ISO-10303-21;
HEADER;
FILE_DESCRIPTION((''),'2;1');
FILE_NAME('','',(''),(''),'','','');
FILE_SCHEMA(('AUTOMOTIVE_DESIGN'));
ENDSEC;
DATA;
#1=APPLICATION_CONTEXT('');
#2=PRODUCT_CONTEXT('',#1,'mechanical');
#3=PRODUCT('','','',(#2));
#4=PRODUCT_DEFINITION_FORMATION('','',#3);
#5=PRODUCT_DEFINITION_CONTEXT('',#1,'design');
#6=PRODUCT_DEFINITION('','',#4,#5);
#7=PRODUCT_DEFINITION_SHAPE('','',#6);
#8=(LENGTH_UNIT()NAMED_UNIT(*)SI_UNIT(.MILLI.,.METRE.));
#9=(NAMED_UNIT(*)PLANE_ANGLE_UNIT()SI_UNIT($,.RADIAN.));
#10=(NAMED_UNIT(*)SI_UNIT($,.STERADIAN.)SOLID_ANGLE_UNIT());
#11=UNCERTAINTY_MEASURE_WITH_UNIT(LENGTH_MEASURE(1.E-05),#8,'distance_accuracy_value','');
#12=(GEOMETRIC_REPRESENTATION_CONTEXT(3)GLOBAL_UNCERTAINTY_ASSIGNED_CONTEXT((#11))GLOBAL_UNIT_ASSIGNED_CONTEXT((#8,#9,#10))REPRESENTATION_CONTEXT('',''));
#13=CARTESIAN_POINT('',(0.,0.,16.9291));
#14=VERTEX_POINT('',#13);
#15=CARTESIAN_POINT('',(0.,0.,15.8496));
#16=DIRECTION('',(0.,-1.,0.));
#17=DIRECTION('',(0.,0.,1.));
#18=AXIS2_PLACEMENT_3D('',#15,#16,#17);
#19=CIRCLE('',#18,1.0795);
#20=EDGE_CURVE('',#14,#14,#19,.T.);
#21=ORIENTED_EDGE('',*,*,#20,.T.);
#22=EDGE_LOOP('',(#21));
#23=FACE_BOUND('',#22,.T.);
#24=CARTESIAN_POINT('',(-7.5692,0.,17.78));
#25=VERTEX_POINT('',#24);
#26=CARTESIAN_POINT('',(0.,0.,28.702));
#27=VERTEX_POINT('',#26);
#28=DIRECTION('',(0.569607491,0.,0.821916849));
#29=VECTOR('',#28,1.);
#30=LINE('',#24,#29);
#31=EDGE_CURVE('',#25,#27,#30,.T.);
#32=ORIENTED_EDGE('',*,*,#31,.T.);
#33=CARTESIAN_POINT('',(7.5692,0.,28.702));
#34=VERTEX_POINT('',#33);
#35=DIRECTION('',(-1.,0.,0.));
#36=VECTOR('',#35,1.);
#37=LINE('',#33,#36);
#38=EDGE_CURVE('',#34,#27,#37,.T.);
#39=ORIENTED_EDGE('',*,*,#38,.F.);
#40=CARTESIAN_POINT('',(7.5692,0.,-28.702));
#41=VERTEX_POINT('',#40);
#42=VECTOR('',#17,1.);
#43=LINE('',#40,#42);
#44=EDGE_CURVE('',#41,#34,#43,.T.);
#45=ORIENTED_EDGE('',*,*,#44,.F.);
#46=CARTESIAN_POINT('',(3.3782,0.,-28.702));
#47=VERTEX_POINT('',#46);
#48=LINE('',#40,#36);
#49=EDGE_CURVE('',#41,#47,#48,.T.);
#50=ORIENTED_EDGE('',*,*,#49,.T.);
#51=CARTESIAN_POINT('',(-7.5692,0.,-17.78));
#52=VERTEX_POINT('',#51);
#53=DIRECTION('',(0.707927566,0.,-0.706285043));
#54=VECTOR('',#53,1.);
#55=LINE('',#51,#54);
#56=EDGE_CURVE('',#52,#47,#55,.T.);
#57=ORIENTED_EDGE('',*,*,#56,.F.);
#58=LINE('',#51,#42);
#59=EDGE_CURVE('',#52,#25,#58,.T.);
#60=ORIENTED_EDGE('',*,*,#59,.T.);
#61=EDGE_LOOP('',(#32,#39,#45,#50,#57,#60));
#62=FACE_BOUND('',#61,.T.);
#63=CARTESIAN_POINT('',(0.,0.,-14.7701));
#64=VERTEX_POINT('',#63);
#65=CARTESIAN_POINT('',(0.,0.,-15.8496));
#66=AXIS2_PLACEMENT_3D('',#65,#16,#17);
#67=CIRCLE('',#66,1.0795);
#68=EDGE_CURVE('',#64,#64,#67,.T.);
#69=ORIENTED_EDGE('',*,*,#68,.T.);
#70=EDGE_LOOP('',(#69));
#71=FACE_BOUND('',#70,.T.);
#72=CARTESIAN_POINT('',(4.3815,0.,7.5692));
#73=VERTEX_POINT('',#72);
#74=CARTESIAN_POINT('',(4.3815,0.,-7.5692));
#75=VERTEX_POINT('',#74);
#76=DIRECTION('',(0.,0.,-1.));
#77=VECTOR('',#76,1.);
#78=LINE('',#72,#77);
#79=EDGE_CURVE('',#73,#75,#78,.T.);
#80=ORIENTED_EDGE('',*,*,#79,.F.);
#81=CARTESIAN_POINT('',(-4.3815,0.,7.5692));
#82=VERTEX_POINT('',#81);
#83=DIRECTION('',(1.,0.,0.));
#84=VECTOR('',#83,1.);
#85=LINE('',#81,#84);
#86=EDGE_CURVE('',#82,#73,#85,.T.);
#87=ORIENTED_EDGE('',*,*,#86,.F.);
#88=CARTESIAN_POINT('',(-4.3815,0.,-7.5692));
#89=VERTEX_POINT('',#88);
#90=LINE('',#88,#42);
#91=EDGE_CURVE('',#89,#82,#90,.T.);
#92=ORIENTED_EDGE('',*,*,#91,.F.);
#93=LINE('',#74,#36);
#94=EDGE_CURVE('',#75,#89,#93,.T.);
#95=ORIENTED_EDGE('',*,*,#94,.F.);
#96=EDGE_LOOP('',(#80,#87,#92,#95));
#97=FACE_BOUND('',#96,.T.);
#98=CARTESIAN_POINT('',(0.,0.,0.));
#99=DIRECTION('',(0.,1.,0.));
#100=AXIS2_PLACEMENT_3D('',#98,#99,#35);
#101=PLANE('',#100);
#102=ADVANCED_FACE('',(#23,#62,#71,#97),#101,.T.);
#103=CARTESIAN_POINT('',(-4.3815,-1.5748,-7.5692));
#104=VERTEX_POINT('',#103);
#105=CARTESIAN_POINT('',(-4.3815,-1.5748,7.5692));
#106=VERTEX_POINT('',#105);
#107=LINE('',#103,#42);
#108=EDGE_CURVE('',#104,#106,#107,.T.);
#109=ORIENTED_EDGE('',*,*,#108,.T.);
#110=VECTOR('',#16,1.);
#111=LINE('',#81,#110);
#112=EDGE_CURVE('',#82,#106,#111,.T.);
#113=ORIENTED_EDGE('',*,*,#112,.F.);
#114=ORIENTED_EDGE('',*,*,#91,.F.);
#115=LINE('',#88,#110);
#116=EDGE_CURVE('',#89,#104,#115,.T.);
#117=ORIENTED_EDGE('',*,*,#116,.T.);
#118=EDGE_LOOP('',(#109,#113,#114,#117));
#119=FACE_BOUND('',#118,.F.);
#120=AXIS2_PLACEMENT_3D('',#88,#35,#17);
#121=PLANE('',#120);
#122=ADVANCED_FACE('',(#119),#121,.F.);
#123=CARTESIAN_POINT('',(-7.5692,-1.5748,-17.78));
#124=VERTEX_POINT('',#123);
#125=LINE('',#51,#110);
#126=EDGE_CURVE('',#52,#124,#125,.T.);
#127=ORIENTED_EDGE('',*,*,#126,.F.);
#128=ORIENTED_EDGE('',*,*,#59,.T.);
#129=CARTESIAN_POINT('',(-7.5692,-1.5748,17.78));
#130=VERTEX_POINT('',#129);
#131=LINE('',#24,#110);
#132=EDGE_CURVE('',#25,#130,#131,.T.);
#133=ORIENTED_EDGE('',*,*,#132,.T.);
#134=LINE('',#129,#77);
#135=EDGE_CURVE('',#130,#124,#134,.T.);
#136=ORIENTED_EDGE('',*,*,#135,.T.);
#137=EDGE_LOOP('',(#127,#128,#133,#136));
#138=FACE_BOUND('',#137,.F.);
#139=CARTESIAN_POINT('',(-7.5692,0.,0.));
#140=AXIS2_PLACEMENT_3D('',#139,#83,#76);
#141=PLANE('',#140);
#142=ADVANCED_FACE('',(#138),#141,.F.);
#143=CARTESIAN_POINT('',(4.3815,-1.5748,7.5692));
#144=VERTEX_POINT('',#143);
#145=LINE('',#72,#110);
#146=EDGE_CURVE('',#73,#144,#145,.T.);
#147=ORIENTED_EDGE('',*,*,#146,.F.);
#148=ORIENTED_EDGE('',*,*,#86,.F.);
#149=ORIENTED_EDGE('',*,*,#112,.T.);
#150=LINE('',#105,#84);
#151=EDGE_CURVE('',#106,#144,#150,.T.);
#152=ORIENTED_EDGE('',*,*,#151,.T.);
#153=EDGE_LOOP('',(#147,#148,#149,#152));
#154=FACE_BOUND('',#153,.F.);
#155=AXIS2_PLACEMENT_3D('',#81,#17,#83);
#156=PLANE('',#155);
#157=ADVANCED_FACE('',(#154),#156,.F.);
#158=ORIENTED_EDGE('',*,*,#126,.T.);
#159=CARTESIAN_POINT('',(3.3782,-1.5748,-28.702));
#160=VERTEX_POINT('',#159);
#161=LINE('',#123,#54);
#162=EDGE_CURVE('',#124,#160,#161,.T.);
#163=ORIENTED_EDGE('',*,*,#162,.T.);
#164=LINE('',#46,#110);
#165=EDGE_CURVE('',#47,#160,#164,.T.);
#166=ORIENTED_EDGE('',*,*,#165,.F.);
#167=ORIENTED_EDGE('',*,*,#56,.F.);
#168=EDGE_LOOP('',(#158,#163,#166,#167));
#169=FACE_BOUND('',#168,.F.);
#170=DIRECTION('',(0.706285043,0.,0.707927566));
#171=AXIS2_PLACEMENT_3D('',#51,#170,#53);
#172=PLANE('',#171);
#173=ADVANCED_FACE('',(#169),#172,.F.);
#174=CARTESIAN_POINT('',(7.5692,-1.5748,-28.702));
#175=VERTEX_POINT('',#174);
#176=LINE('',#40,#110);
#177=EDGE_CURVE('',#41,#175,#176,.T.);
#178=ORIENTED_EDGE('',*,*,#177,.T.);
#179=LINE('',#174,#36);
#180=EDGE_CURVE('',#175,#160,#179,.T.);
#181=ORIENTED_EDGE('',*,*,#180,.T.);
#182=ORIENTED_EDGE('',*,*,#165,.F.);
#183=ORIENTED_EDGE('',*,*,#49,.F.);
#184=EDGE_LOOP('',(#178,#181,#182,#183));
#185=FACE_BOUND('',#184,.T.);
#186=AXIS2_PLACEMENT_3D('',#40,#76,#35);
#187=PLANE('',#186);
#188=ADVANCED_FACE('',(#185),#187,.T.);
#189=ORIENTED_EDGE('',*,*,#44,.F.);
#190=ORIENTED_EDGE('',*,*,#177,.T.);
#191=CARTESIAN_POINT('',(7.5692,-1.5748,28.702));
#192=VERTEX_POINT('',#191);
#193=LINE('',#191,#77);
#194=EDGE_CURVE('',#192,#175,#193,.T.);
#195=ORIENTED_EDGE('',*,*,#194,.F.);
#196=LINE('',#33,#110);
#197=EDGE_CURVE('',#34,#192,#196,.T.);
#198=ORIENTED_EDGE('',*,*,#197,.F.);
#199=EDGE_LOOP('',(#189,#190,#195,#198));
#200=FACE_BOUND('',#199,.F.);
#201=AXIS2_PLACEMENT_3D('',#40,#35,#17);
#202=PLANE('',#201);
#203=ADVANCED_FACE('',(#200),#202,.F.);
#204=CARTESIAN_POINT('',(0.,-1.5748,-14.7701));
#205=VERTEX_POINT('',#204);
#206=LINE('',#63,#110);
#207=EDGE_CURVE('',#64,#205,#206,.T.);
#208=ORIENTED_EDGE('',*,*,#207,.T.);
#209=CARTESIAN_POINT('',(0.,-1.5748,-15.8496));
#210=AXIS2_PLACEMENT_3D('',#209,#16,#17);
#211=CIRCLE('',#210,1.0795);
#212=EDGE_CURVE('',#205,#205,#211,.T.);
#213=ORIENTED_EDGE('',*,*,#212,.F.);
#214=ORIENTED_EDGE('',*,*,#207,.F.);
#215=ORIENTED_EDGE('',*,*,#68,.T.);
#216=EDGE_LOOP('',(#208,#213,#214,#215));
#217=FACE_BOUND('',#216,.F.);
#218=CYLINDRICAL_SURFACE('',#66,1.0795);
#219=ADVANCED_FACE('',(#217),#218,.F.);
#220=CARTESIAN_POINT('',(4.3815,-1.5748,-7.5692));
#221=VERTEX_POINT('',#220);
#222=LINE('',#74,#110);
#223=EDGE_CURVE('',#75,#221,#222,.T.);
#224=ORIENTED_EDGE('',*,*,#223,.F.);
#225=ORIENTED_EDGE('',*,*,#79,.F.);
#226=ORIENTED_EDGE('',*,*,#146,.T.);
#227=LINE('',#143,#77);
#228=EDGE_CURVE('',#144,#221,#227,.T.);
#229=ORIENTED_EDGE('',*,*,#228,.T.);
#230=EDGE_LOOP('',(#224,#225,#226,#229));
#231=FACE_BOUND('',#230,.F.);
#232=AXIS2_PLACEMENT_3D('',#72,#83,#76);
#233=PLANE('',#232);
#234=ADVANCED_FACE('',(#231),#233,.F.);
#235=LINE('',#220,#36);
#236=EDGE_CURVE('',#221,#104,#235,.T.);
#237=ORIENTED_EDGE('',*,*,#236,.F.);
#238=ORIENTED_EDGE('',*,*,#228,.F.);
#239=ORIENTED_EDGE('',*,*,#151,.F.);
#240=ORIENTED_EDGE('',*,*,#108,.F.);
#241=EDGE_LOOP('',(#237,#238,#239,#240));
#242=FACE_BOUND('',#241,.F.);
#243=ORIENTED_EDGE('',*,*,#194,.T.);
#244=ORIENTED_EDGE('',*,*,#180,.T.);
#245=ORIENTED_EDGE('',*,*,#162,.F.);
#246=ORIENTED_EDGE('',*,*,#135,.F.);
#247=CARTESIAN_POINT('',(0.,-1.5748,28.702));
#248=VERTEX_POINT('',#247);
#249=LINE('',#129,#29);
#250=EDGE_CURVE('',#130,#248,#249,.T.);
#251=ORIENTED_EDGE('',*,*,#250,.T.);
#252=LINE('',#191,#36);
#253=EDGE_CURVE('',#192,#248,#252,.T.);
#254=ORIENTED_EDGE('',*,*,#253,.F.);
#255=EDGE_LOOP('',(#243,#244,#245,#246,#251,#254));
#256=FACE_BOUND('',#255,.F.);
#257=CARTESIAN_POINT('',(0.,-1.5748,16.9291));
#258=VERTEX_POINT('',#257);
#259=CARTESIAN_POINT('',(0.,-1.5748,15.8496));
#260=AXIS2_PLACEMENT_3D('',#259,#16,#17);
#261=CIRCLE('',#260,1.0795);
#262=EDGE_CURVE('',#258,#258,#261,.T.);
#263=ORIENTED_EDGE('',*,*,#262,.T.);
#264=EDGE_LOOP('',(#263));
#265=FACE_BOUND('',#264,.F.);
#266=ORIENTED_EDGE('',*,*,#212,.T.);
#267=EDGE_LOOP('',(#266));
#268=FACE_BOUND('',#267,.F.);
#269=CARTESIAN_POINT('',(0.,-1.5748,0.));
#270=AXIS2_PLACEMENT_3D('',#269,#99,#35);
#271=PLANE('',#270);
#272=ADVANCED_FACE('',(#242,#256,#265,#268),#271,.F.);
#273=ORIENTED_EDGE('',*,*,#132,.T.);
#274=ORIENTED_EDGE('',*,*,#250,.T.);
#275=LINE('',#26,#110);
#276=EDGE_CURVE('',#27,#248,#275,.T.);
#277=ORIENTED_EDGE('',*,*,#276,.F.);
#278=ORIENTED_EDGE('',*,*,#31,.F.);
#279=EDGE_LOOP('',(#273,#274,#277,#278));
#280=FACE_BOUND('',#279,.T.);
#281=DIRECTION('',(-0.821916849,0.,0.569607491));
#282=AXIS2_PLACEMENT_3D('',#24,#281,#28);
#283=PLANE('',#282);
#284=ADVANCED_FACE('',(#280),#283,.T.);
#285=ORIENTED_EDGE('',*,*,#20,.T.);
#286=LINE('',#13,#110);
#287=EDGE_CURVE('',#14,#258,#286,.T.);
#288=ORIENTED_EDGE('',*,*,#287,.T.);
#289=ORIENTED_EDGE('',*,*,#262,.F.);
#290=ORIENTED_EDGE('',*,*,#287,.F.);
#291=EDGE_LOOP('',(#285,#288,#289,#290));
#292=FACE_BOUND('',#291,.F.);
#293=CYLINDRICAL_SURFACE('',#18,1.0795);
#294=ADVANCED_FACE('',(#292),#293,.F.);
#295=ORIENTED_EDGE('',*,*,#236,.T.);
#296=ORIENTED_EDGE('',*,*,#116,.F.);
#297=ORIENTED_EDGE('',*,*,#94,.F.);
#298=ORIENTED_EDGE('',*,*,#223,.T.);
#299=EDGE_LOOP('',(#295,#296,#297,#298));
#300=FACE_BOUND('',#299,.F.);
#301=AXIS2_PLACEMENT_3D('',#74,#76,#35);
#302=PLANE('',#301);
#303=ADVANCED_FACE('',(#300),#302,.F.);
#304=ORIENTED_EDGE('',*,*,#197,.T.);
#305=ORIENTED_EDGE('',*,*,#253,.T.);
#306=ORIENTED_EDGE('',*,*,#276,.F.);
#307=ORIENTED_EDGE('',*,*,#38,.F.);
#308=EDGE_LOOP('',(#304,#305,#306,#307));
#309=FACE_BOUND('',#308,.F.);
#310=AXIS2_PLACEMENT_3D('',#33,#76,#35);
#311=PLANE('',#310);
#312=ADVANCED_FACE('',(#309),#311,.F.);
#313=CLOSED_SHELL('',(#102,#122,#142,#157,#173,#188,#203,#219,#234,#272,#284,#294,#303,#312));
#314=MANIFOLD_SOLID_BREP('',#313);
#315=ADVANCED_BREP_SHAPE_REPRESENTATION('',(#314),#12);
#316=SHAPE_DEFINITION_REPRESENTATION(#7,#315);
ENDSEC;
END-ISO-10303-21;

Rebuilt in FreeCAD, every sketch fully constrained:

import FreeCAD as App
import Part
import Sketcher
Q = App.Units.Quantity

doc = App.newDocument("Part")
body = doc.addObject("PartDesign::Body", "Body")

sketch1 = body.newObject("Sketcher::SketchObject", "Sketch")
sketch1.AttachmentSupport = (doc.getObject("XZ_Plane"), [""])
sketch1.MapMode = "FlatFace"
sketch1.addGeometry([
    Part.LineSegment(App.Vector(7.6, 28.7, 0), App.Vector(7.6, -28.7, 0)),
    Part.LineSegment(App.Vector(7.6, -28.7, 0), App.Vector(3.4, -28.7, 0)),
    Part.LineSegment(App.Vector(3.4, -28.7, 0), App.Vector(-7.6, -17.8, 0)),
    Part.LineSegment(App.Vector(-7.6, -17.8, 0), App.Vector(-7.6, 17.8, 0)),
    Part.LineSegment(App.Vector(-7.6, 17.8, 0), App.Vector(0, 28.7, 0)),
    Part.LineSegment(App.Vector(0, 28.7, 0), App.Vector(7.6, 28.7, 0)),
    Part.LineSegment(App.Vector(-4.4, -7.6, 0), App.Vector(4.4, -7.6, 0)),
    Part.LineSegment(App.Vector(4.4, -7.6, 0), App.Vector(4.4, 7.6, 0)),
    Part.LineSegment(App.Vector(4.4, 7.6, 0), App.Vector(-4.4, 7.6, 0)),
    Part.LineSegment(App.Vector(-4.4, 7.6, 0), App.Vector(-4.4, -7.6, 0)),
], False)
sketch1.addConstraint([
    Sketcher.Constraint("Coincident", 0, 2, 1, 1),
    Sketcher.Constraint("Coincident", 1, 2, 2, 1),
    Sketcher.Constraint("Coincident", 2, 2, 3, 1),
    Sketcher.Constraint("Coincident", 3, 2, 4, 1),
    Sketcher.Constraint("Coincident", 4, 2, 5, 1),
    Sketcher.Constraint("Coincident", 5, 2, 0, 1),
    Sketcher.Constraint("Coincident", 6, 2, 7, 1),
    Sketcher.Constraint("Coincident", 7, 2, 8, 1),
    Sketcher.Constraint("Coincident", 8, 2, 9, 1),
    Sketcher.Constraint("Coincident", 9, 2, 6, 1),
    Sketcher.Constraint("Vertical", 0),
    Sketcher.Constraint("Horizontal", 1),
    Sketcher.Constraint("Vertical", 3),
    Sketcher.Constraint("Horizontal", 5),
    Sketcher.Constraint("Horizontal", 6),
    Sketcher.Constraint("Vertical", 7),
    Sketcher.Constraint("Horizontal", 8),
    Sketcher.Constraint("Vertical", 9),
    Sketcher.Constraint("Symmetric", 6, 2, 8, 2, -1, 1),
    Sketcher.Constraint("PointOnObject", 4, 2, -2),
    Sketcher.Constraint("DistanceY", 0, 2, 0, 1, Q("2.26 in")),
    Sketcher.Constraint("DistanceX", 5, 1, 5, 2, Q("0.298 in")),
    Sketcher.Constraint("DistanceX", 6, 1, 6, 2, Q("0.345 in")),
    Sketcher.Constraint("DistanceY", 7, 1, 7, 2, Q("0.596 in")),
    Sketcher.Constraint("DistanceY", 1, 2, 2, 2, Q("0.43 in")),
    Sketcher.Constraint("DistanceY", 3, 2, 4, 2, Q("0.43 in")),
    Sketcher.Constraint("DistanceX", 2, 2, -1, 1, Q("0.298 in")),
    Sketcher.Constraint("DistanceX", 2, 2, 1, 2, Q("0.431 in")),
    Sketcher.Constraint("DistanceY", 2, 2, -1, 1, Q("0.7 in")),
])
pad1 = body.newObject("PartDesign::Pad", "Pad")
pad1.Profile = sketch1
pad1.Length = Q("0.062 in")

sketch2 = body.newObject("Sketcher::SketchObject", "Sketch001")
sketch2.AttachmentSupport = (doc.getObject("XZ_Plane"), [""])
sketch2.MapMode = "FlatFace"
sketch2.addGeometry([
    Part.Circle(App.Vector(0, -15.8, 0), App.Vector(0, 0, 1), 1.1),
    Part.Circle(App.Vector(0, 15.8, 0), App.Vector(0, 0, 1), 1.1),
], False)
sketch2.addConstraint([
    Sketcher.Constraint("Equal", 0, 1),
    Sketcher.Constraint("Symmetric", 0, 3, 1, 3, -1, 1),
    Sketcher.Constraint("PointOnObject", 0, 3, -2),
    Sketcher.Constraint("Diameter", 0, Q("0.085 in")),
    Sketcher.Constraint("DistanceY", 0, 3, -1, 1, Q("0.624 in")),
])
doc.recompute()
hole = body.newObject("PartDesign::Hole", "Hole")
hole.Profile = sketch2
hole.ThreadType = "None"
hole.Diameter = Q("0.085 in")
hole.DepthType = "Dimension"
hole.Depth = Q("0.349 in")
hole.DrillPoint = "Angled"
hole.DrillPointAngle = 118
hole.Reversed = True

doc.recompute()
